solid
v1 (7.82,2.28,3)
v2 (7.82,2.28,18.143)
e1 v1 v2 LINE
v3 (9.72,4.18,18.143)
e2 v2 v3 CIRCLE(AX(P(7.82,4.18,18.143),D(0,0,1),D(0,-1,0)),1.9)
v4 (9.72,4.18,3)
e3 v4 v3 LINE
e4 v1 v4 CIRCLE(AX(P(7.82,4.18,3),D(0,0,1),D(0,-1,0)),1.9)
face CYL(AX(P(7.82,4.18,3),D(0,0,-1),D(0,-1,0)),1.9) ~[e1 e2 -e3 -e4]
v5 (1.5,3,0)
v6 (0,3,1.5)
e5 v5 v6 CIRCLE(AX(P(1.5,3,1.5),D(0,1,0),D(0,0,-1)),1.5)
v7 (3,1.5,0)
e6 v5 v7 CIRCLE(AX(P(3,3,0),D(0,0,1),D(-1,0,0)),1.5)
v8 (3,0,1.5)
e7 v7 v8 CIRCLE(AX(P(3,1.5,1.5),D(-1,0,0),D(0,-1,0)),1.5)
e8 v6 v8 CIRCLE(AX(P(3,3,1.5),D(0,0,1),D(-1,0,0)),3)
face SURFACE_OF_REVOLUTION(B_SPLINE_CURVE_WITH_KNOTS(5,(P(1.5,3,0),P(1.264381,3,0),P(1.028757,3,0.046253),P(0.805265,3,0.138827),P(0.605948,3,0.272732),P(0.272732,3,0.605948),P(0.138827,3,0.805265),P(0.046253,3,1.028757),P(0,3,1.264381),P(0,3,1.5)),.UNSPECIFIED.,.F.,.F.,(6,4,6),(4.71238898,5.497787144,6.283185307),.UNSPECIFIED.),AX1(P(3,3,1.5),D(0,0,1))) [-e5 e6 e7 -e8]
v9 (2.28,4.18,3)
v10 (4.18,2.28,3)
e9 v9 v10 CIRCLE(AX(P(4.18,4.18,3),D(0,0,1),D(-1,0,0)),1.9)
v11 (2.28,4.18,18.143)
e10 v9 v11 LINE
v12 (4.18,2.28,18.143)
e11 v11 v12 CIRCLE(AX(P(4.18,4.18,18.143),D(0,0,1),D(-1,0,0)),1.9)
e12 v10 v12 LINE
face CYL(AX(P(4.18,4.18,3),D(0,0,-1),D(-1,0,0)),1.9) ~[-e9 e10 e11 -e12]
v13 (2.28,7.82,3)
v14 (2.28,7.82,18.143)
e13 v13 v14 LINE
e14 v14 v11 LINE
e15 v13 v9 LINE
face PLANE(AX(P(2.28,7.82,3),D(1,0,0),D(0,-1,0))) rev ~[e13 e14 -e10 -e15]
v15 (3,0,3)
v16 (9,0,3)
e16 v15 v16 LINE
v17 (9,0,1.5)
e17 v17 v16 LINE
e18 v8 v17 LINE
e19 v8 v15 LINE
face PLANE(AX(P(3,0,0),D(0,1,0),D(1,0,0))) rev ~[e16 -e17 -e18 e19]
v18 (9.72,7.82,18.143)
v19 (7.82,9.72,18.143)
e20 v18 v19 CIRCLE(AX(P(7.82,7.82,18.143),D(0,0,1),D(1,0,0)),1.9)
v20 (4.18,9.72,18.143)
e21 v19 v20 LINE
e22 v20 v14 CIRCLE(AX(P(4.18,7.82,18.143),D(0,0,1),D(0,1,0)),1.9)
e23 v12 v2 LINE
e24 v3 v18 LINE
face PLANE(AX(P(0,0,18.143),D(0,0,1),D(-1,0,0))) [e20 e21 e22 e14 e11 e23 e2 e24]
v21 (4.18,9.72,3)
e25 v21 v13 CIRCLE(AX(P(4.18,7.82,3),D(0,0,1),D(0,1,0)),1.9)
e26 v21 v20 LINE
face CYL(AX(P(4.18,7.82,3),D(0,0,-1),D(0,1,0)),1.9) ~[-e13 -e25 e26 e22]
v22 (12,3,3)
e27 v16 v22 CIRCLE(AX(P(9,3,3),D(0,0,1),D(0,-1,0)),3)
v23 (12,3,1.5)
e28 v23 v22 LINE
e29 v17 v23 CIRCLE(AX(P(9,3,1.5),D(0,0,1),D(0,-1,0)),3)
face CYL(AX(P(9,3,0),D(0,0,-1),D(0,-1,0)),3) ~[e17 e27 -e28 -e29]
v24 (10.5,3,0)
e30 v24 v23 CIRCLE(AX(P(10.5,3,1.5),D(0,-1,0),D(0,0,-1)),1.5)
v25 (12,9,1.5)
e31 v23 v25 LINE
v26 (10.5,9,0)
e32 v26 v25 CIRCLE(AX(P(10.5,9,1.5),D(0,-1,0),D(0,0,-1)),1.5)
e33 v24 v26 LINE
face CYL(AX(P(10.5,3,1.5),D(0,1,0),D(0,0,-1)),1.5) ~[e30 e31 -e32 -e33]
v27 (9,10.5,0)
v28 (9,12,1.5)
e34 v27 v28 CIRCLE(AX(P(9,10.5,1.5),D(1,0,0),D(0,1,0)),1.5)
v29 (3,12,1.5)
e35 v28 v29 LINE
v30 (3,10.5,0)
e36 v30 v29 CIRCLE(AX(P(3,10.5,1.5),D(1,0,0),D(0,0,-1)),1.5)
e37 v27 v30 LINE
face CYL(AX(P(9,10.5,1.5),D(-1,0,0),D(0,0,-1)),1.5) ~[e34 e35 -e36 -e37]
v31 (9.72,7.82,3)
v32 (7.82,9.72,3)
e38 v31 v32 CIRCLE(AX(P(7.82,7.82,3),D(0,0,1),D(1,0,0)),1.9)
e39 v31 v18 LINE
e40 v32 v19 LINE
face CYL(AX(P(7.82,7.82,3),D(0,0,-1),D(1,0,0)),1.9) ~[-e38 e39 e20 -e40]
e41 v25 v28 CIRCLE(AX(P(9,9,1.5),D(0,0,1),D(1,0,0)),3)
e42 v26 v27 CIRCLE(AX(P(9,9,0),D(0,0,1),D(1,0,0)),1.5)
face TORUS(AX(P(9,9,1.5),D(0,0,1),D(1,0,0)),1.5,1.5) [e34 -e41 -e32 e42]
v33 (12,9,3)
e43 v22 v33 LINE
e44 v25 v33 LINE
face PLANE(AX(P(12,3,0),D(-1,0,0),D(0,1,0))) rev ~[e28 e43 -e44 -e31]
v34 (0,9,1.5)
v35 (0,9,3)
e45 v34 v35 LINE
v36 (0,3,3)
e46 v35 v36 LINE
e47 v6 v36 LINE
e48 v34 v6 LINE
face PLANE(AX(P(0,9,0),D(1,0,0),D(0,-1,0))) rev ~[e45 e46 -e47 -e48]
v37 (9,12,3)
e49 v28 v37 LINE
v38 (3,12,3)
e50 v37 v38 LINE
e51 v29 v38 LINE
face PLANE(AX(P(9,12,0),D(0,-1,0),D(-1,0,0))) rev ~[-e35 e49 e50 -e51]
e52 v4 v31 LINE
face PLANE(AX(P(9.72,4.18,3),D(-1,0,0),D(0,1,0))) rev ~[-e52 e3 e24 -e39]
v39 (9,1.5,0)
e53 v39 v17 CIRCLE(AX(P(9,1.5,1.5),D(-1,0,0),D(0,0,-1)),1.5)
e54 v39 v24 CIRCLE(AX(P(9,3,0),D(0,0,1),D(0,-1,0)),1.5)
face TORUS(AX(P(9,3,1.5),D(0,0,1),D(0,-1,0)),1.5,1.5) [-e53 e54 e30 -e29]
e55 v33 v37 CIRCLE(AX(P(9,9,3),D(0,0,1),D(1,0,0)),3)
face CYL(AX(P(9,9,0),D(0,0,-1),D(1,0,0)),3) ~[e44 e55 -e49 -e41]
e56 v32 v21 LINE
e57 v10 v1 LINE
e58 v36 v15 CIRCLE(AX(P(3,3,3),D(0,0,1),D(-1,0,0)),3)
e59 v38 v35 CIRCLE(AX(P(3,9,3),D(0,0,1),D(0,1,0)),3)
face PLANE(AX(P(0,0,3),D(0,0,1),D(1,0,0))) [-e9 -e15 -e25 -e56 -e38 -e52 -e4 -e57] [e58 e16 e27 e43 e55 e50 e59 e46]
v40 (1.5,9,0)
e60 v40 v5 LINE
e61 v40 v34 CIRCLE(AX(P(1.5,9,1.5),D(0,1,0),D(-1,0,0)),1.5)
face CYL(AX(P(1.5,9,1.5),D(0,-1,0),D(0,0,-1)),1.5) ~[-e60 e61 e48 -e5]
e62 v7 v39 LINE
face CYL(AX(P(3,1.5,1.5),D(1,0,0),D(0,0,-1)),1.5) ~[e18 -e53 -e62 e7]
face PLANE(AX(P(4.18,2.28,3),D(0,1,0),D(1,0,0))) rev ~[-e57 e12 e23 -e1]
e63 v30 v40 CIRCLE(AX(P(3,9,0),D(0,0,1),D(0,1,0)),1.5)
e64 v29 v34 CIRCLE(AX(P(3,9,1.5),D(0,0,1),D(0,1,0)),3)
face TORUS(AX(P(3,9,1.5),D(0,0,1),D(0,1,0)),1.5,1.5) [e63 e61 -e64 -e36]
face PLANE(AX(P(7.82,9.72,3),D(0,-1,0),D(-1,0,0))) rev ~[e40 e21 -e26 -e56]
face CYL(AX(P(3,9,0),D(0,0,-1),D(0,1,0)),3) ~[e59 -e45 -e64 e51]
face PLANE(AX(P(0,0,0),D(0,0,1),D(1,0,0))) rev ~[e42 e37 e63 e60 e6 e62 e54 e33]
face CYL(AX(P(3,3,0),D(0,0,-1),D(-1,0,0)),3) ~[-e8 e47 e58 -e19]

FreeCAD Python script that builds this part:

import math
import FreeCAD as App
import Part
import Sketcher
Q = App.Units.Quantity


def edges_at(feature, points):
    """Names of the edges that pass closest to the given points."""
    edges = feature.Shape.Edges
    near = lambda p: min(range(len(edges)), key=lambda i: edges[i].distToShape(Part.Vertex(*p))[0])
    return sorted({f"Edge{near(p) + 1}" for p in points})

doc = App.newDocument("Part")
body = doc.addObject("PartDesign::Body", "Body")

sketch1 = body.newObject("Sketcher::SketchObject", "Sketch")
sketch1.AttachmentSupport = (doc.getObject("XY_Plane"), [""])
sketch1.MapMode = "FlatFace"
sketch1.addGeometry(Part.ArcOfCircle(Part.Circle(App.Vector(3, 3, 0), App.Vector(0, 0, 1), 3), math.radians(180), math.radians(270)), False)
sketch1.addGeometry(Part.LineSegment(App.Vector(3, 0, 0), App.Vector(9, 0, 0)), False)
sketch1.addGeometry(Part.ArcOfCircle(Part.Circle(App.Vector(9, 3, 0), App.Vector(0, 0, 1), 3), math.radians(-90), math.radians(0)), False)
sketch1.addGeometry(Part.LineSegment(App.Vector(12, 3, 0), App.Vector(12, 9, 0)), False)
sketch1.addGeometry(Part.ArcOfCircle(Part.Circle(App.Vector(9, 9, 0), App.Vector(0, 0, 1), 3), math.radians(0), math.radians(90)), False)
sketch1.addGeometry(Part.LineSegment(App.Vector(9, 12, 0), App.Vector(3, 12, 0)), False)
sketch1.addGeometry(Part.ArcOfCircle(Part.Circle(App.Vector(3, 9, 0), App.Vector(0, 0, 1), 3), math.radians(90), math.radians(180)), False)
sketch1.addGeometry(Part.LineSegment(App.Vector(0, 9, 0), App.Vector(0, 3, 0)), False)
sketch1.addConstraint(Sketcher.Constraint("Tangent", 0, 2, 1, 1))
sketch1.addConstraint(Sketcher.Constraint("Tangent", 1, 2, 2, 1))
sketch1.addConstraint(Sketcher.Constraint("Tangent", 2, 2, 3, 1))
sketch1.addConstraint(Sketcher.Constraint("Tangent", 3, 2, 4, 1))
sketch1.addConstraint(Sketcher.Constraint("Tangent", 4, 2, 5, 1))
sketch1.addConstraint(Sketcher.Constraint("Tangent", 5, 2, 6, 1))
sketch1.addConstraint(Sketcher.Constraint("Tangent", 6, 2, 7, 1))
sketch1.addConstraint(Sketcher.Constraint("Tangent", 7, 2, 0, 1))
sketch1.addConstraint(Sketcher.Constraint("Horizontal", 1))
sketch1.addConstraint(Sketcher.Constraint("Vertical", 3))
sketch1.addConstraint(Sketcher.Constraint("Horizontal", 5))
sketch1.addConstraint(Sketcher.Constraint("Vertical", 7))
sketch1.addConstraint(Sketcher.Constraint("Equal", 0, 2))
sketch1.addConstraint(Sketcher.Constraint("Equal", 2, 4))
sketch1.addConstraint(Sketcher.Constraint("Equal", 4, 6))
sketch1.addConstraint(Sketcher.Constraint("PointOnObject", 0, 2, -1))
sketch1.addConstraint(Sketcher.Constraint("PointOnObject", 6, 2, -2))
sketch1.addConstraint(Sketcher.Constraint("Equal", 5, 3))
sketch1.addConstraint(Sketcher.Constraint("Radius", 0, Q("3 mm")))
sketch1.addConstraint(Sketcher.Constraint("DistanceX", -1, 1, 2, 2, Q("12 mm")))
pad1 = body.newObject("PartDesign::Pad", "Pad")
pad1.Profile = sketch1
pad1.Length = 3

sketch2 = body.newObject("Sketcher::SketchObject", "Sketch001")
sketch2.AttachmentSupport = (doc.getObject("XY_Plane"), [""])
sketch2.MapMode = "FlatFace"
sketch2.AttachmentOffset = App.Placement(App.Vector(0, 0, 3), App.Rotation())
sketch2.addGeometry(Part.ArcOfCircle(Part.Circle(App.Vector(4.18, 4.18, 0), App.Vector(0, 0, 1), 1.9), math.radians(180), math.radians(270)), False)
sketch2.addGeometry(Part.LineSegment(App.Vector(4.18, 2.28, 0), App.Vector(7.82, 2.28, 0)), False)
sketch2.addGeometry(Part.ArcOfCircle(Part.Circle(App.Vector(7.82, 4.18, 0), App.Vector(0, 0, 1), 1.9), math.radians(-90), math.radians(0)), False)
sketch2.addGeometry(Part.LineSegment(App.Vector(9.72, 4.18, 0), App.Vector(9.72, 7.82, 0)), False)
sketch2.addGeometry(Part.ArcOfCircle(Part.Circle(App.Vector(7.82, 7.82, 0), App.Vector(0, 0, 1), 1.9), math.radians(0), math.radians(90)), False)
sketch2.addGeometry(Part.LineSegment(App.Vector(7.82, 9.72, 0), App.Vector(4.18, 9.72, 0)), False)
sketch2.addGeometry(Part.ArcOfCircle(Part.Circle(App.Vector(4.18, 7.82, 0), App.Vector(0, 0, 1), 1.9), math.radians(90), math.radians(180)), False)
sketch2.addGeometry(Part.LineSegment(App.Vector(2.28, 7.82, 0), App.Vector(2.28, 4.18, 0)), False)
sketch2.addConstraint(Sketcher.Constraint("Tangent", 0, 2, 1, 1))
sketch2.addConstraint(Sketcher.Constraint("Tangent", 1, 2, 2, 1))
sketch2.addConstraint(Sketcher.Constraint("Tangent", 2, 2, 3, 1))
sketch2.addConstraint(Sketcher.Constraint("Tangent", 3, 2, 4, 1))
sketch2.addConstraint(Sketcher.Constraint("Tangent", 4, 2, 5, 1))
sketch2.addConstraint(Sketcher.Constraint("Tangent", 5, 2, 6, 1))
sketch2.addConstraint(Sketcher.Constraint("Tangent", 6, 2, 7, 1))
sketch2.addConstraint(Sketcher.Constraint("Tangent", 7, 2, 0, 1))
sketch2.addConstraint(Sketcher.Constraint("Horizontal", 1))
sketch2.addConstraint(Sketcher.Constraint("Vertical", 3))
sketch2.addConstraint(Sketcher.Constraint("Horizontal", 5))
sketch2.addConstraint(Sketcher.Constraint("Vertical", 7))
sketch2.addConstraint(Sketcher.Constraint("Equal", 0, 2))
sketch2.addConstraint(Sketcher.Constraint("Equal", 2, 4))
sketch2.addConstraint(Sketcher.Constraint("Equal", 4, 6))
sketch2.addConstraint(Sketcher.Constraint("Equal", 5, 3))
sketch2.addConstraint(Sketcher.Constraint("Radius", 0, Q("1.9 mm")))
sketch2.addConstraint(Sketcher.Constraint("DistanceX", 1, 1, 1, 2, Q("3.64 mm")))
sketch2.addConstraint(Sketcher.Constraint("DistanceX", -1, 1, 0, 3, Q("4.18 mm")))
sketch2.addConstraint(Sketcher.Constraint("DistanceY", -1, 1, 0, 3, Q("4.18 mm")))
pad2 = body.newObject("PartDesign::Pad", "Pad001")
pad2.Profile = sketch2
pad2.Length = 15.143
doc.recompute()

fillet = body.newObject("PartDesign::Fillet", "Fillet")
fillet.Base = (pad2, edges_at(pad2, [
    (12, 6, 0),
    (11.121, 11.121, 0),
    (6, 12, 0),
    (0.879, 11.121, 0),
    (0, 6, 0),
    (0.879, 0.879, 0),
    (6, 0, 0),
    (11.121, 0.879, 0),
]))
fillet.Radius = 1.5

doc.recompute()
